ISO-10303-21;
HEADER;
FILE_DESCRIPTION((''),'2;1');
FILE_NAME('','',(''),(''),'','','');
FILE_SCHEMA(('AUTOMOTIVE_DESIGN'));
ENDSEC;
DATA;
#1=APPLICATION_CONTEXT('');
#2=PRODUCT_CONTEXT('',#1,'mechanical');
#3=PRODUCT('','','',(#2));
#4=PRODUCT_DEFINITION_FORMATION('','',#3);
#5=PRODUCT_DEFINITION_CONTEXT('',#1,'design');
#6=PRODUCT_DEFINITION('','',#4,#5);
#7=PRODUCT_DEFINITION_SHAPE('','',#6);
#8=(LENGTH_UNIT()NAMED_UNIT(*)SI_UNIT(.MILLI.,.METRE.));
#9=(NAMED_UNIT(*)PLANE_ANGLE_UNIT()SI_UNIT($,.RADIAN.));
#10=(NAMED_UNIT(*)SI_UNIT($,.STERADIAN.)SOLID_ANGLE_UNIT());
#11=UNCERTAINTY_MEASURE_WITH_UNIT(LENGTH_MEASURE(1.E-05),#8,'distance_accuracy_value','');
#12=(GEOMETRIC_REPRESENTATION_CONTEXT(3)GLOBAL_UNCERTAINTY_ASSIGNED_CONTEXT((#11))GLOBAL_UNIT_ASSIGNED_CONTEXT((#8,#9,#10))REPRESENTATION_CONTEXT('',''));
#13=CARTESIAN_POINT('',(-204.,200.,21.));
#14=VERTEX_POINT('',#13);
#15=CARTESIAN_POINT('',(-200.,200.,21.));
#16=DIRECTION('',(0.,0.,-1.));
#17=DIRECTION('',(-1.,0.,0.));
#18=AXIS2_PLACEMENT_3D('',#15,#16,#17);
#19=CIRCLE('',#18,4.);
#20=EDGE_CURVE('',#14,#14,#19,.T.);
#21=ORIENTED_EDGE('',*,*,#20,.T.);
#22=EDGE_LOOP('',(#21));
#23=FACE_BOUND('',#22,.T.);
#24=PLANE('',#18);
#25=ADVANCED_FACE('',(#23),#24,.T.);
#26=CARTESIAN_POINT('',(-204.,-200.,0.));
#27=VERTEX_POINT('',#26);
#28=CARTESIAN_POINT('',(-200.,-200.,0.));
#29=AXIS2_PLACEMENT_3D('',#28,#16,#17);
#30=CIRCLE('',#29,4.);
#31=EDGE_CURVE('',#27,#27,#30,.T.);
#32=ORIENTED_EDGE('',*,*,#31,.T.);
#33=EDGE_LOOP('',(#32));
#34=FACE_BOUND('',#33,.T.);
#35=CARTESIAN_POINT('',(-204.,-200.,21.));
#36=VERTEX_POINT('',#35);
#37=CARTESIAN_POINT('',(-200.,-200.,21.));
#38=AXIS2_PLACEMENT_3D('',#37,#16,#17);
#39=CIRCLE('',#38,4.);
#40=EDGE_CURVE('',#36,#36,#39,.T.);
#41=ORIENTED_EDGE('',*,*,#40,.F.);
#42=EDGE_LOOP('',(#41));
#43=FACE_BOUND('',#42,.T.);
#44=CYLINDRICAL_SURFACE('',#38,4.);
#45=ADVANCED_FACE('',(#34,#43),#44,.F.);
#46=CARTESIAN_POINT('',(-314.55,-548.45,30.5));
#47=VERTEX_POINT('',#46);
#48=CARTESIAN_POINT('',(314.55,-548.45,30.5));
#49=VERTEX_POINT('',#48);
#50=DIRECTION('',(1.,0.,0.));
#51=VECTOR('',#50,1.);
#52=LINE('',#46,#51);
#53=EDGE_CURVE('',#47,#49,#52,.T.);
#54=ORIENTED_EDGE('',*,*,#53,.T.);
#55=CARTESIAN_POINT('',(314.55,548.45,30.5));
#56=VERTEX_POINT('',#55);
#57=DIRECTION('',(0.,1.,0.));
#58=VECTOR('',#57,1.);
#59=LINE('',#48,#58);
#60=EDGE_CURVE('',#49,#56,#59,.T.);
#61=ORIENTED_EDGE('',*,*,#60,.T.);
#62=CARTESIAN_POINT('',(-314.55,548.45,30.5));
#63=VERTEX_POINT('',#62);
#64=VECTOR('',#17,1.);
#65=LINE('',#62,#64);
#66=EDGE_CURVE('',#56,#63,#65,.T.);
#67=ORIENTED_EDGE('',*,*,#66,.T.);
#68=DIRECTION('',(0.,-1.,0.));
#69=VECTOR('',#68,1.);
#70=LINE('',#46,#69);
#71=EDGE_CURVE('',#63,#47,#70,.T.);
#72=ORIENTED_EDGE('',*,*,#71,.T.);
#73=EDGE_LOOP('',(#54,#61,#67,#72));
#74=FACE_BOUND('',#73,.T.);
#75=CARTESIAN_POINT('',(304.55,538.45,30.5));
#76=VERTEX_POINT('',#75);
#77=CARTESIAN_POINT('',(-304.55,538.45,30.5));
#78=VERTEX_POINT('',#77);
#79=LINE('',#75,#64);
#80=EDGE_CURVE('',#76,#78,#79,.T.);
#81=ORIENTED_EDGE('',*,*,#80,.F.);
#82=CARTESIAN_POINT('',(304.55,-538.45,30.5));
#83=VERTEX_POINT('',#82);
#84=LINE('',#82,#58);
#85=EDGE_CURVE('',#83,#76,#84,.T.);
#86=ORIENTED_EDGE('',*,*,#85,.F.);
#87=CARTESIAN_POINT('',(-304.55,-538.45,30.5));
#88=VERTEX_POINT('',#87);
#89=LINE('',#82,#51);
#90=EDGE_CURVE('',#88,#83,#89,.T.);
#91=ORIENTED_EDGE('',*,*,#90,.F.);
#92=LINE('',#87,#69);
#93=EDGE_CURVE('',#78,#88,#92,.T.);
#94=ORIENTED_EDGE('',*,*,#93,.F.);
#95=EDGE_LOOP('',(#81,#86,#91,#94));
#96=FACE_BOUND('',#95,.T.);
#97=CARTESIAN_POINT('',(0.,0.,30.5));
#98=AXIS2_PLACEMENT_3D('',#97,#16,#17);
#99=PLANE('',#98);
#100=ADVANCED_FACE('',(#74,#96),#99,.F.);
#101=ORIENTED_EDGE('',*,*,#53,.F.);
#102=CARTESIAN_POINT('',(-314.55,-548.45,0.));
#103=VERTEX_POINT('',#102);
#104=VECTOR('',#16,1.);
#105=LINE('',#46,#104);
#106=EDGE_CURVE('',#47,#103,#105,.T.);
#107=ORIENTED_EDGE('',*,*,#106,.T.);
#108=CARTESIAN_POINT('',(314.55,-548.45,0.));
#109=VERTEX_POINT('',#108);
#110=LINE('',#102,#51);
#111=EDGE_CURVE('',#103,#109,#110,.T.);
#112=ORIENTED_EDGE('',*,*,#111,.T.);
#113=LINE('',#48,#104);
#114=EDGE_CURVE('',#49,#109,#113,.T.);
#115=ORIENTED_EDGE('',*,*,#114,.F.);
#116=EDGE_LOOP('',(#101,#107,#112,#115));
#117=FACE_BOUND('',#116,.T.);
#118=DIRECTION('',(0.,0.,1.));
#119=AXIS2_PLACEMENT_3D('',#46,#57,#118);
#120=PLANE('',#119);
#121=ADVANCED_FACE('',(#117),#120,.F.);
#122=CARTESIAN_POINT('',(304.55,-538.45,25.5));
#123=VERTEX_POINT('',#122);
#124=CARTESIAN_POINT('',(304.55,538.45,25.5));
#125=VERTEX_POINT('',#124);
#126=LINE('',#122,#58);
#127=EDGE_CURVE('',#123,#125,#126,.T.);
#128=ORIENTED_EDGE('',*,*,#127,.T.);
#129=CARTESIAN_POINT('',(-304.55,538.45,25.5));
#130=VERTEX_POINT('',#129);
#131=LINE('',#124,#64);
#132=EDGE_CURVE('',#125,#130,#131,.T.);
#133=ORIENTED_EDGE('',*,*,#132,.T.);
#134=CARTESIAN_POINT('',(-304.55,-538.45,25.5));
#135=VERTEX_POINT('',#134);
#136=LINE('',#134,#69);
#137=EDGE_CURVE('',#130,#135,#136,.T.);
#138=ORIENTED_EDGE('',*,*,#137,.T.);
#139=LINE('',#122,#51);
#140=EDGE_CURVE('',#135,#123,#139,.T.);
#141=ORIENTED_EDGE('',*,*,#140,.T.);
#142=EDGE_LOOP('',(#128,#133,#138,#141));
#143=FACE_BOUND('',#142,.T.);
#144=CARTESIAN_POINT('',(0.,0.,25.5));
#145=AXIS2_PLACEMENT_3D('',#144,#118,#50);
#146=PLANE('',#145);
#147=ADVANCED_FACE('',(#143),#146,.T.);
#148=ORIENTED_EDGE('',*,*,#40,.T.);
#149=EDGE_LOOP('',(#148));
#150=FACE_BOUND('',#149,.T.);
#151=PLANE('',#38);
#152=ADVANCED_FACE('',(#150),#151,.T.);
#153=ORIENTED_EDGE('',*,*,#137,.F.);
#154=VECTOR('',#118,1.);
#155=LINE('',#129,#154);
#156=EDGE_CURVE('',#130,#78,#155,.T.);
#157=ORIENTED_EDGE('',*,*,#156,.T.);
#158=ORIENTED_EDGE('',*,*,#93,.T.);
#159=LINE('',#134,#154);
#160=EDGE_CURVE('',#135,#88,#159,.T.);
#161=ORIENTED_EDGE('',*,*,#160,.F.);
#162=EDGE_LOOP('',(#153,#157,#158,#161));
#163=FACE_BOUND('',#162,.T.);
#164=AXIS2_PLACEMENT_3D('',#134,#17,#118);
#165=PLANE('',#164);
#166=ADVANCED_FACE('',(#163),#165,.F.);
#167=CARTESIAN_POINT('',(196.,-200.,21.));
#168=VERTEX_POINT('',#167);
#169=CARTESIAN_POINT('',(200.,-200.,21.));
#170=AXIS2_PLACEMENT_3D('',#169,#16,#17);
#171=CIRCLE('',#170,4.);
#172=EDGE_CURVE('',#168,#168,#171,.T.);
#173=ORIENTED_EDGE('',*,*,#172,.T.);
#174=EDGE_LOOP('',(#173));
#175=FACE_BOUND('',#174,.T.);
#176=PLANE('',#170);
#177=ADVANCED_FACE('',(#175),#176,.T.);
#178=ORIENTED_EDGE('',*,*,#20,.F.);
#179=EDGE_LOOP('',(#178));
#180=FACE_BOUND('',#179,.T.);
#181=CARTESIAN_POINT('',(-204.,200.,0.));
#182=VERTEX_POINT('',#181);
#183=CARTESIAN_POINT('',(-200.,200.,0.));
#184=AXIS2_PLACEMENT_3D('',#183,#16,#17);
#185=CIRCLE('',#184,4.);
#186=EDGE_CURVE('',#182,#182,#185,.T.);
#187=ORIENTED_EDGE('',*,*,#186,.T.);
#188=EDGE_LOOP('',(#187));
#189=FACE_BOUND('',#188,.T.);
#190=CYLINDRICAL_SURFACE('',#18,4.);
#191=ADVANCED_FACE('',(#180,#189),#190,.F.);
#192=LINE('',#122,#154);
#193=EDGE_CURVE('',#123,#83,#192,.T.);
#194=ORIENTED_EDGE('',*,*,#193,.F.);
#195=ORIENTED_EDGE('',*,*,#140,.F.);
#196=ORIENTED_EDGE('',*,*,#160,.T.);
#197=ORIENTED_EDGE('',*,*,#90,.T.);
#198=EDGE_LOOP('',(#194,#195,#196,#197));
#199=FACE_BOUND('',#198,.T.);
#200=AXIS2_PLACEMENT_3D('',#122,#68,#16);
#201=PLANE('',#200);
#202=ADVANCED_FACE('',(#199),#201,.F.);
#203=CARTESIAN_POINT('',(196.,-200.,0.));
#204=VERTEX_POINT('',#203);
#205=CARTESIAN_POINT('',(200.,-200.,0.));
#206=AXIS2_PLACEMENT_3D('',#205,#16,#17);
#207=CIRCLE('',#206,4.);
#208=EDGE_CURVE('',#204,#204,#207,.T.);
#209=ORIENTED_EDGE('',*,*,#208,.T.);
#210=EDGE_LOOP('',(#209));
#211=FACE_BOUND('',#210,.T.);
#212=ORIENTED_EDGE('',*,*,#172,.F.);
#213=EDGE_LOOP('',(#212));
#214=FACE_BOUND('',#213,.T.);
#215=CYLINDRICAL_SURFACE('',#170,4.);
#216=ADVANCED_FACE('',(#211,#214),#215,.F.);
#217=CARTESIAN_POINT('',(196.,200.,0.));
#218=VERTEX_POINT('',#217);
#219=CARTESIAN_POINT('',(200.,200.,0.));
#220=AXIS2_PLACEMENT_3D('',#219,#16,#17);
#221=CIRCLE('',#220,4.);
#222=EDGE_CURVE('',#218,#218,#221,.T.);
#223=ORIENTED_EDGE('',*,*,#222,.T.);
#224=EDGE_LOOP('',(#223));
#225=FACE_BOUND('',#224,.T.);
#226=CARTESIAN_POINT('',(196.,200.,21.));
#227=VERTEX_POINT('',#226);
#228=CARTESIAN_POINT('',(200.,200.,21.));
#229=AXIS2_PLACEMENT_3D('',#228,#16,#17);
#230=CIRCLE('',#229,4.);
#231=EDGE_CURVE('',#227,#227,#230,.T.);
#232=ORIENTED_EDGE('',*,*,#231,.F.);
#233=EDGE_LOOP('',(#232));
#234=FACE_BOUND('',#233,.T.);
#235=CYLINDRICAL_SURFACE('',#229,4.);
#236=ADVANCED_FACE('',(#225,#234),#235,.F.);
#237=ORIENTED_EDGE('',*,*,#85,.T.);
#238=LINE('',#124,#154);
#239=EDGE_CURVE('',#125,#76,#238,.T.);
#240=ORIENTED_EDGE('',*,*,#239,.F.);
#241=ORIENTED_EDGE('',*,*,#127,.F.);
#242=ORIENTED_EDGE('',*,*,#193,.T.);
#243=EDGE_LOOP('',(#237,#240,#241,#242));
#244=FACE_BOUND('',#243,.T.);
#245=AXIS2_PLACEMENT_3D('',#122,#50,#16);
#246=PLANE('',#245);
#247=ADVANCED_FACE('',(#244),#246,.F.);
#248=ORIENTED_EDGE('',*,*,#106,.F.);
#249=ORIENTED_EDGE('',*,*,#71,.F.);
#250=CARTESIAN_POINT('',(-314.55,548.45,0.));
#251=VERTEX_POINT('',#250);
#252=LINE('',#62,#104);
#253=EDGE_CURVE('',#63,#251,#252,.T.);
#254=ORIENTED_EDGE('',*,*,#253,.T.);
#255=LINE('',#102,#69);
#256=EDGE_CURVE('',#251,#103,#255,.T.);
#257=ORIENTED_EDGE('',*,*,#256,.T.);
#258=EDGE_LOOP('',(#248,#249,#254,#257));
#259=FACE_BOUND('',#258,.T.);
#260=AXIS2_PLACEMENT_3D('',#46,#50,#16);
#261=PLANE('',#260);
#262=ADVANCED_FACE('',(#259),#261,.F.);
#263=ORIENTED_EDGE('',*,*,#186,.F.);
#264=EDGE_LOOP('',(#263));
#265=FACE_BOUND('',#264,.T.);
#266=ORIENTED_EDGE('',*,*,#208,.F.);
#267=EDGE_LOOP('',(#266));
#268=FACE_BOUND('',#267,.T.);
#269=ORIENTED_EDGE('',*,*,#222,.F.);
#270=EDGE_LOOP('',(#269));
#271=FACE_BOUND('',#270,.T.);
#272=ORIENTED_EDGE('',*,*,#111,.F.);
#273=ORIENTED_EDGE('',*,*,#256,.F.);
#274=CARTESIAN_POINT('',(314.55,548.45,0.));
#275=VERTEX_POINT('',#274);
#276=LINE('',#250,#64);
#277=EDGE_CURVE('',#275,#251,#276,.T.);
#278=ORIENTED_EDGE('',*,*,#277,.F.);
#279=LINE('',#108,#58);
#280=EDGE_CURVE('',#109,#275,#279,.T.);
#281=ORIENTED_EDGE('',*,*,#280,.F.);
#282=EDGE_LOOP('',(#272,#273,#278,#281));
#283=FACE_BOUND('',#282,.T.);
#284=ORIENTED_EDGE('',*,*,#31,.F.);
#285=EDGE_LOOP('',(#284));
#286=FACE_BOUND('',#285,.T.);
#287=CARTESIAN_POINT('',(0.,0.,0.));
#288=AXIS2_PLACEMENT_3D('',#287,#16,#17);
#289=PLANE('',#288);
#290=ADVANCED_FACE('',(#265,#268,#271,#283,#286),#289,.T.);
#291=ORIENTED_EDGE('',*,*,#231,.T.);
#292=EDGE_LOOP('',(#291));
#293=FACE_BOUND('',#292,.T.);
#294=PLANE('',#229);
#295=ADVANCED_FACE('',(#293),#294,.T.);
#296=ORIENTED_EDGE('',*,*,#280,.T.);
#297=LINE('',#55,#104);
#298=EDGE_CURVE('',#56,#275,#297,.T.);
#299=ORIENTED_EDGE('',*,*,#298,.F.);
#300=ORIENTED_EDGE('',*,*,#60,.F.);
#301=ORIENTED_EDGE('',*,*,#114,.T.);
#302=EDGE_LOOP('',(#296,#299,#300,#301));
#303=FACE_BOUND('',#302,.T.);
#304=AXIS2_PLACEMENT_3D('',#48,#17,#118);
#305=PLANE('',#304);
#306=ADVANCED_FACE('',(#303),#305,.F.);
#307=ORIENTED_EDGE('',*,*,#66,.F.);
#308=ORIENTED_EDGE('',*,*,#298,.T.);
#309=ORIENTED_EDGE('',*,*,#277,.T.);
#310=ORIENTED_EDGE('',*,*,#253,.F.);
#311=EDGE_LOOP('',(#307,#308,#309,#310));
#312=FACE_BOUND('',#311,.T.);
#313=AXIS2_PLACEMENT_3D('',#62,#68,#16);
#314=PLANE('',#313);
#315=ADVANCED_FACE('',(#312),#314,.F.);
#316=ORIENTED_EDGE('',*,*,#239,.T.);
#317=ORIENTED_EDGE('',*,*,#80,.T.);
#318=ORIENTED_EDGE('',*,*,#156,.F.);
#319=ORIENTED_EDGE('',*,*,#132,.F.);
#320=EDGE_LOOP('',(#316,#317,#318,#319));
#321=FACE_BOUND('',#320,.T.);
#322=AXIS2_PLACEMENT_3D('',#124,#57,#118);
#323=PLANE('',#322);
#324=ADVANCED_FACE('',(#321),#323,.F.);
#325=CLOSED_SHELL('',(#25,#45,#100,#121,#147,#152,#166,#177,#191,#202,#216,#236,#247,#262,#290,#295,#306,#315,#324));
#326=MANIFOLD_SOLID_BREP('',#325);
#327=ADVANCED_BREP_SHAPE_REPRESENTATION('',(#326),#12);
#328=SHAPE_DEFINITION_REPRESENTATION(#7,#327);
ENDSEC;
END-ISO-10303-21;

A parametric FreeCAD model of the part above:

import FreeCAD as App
import Part
import Sketcher

V = App.Vector

doc = App.newDocument("Part")
body = doc.addObject("PartDesign::Body", "Body")

sketch1 = body.newObject("Sketcher::SketchObject", "Sketch")
sketch1.AttachmentSupport = (doc.getObject("XY_Plane"), [""])
sketch1.MapMode = "FlatFace"
sketch1.addGeometry([
    Part.LineSegment(V(-314.55, 548.45, 0), V(-314.55, -548.45, 0)),
    Part.LineSegment(V(-314.55, -548.45, 0), V(314.55, -548.45, 0)),
    Part.LineSegment(V(314.55, -548.45, 0), V(314.55, 548.45, 0)),
    Part.LineSegment(V(314.55, 548.45, 0), V(-314.55, 548.45, 0)),
], False)
sketch1.addConstraint([
    Sketcher.Constraint("Coincident", 0, 2, 1, 1),
    Sketcher.Constraint("Coincident", 1, 2, 2, 1),
    Sketcher.Constraint("Coincident", 2, 2, 3, 1),
    Sketcher.Constraint("Coincident", 3, 2, 0, 1),
    Sketcher.Constraint("Vertical", 0),
    Sketcher.Constraint("Horizontal", 1),
    Sketcher.Constraint("Vertical", 2),
    Sketcher.Constraint("Horizontal", 3),
    Sketcher.Constraint("Symmetric", 0, 2, 2, 2, -1, 1),
    Sketcher.Constraint("DistanceX", 1, 1, 1, 2, 629.1),
    Sketcher.Constraint("DistanceY", 0, 2, 0, 1, 1096.9),
])
pad1 = body.newObject("PartDesign::Pad", "Pad")
pad1.Profile = sketch1
pad1.Length = 30.5

sketch2 = body.newObject("Sketcher::SketchObject", "Sketch001")
sketch2.AttachmentSupport = (doc.getObject("XY_Plane"), [""])
sketch2.MapMode = "FlatFace"
sketch2.addGeometry([
    Part.Circle(V(200, 200, 0), V(0, 0, 1), 4),
    Part.Circle(V(-200, 200, 0), V(0, 0, 1), 4),
    Part.Circle(V(-200, -200, 0), V(0, 0, 1), 4),
    Part.Circle(V(200, -200, 0), V(0, 0, 1), 4),
], False)
sketch2.addConstraint([
    Sketcher.Constraint("Equal", 0, 1),
    Sketcher.Constraint("Equal", 1, 2),
    Sketcher.Constraint("Equal", 2, 3),
    Sketcher.Constraint("Symmetric", 0, 3, 2, 3, -1, 1),
    Sketcher.Constraint("Symmetric", 1, 3, 3, 3, -1, 1),
    Sketcher.Constraint("Symmetric", 0, 3, 1, 3, -2),
    Sketcher.Constraint("Diameter", 0, 8.0),
    Sketcher.Constraint("DistanceX", -1, 1, 0, 3, 200.0),
    Sketcher.Constraint("DistanceY", -1, 1, 0, 3, 200.0),
])
pocket1 = body.newObject("PartDesign::Pocket", "Pocket")
pocket1.Profile = sketch2
pocket1.Length = 21
pocket1.Reversed = True

sketch3 = body.newObject("Sketcher::SketchObject", "Sketch002")
sketch3.AttachmentSupport = (doc.getObject("XY_Plane"), [""])
sketch3.MapMode = "FlatFace"
sketch3.AttachmentOffset = App.Placement(V(0, 0, 30.5), App.Rotation())
sketch3.addGeometry([
    Part.LineSegment(V(-304.55, 538.45, 0), V(-304.55, -538.45, 0)),
    Part.LineSegment(V(-304.55, -538.45, 0), V(304.55, -538.45, 0)),
    Part.LineSegment(V(304.55, -538.45, 0), V(304.55, 538.45, 0)),
    Part.LineSegment(V(304.55, 538.45, 0), V(-304.55, 538.45, 0)),
], False)
sketch3.addConstraint([
    Sketcher.Constraint("Coincident", 0, 2, 1, 1),
    Sketcher.Constraint("Coincident", 1, 2, 2, 1),
    Sketcher.Constraint("Coincident", 2, 2, 3, 1),
    Sketcher.Constraint("Coincident", 3, 2, 0, 1),
    Sketcher.Constraint("Vertical", 0),
    Sketcher.Constraint("Horizontal", 1),
    Sketcher.Constraint("Vertical", 2),
    Sketcher.Constraint("Horizontal", 3),
    Sketcher.Constraint("Symmetric", 0, 2, 2, 2, -1, 1),
    Sketcher.Constraint("DistanceX", 1, 1, 1, 2, 609.1),
    Sketcher.Constraint("DistanceY", 0, 2, 0, 1, 1076.9),
])
pocket2 = body.newObject("PartDesign::Pocket", "Pocket001")
pocket2.Profile = sketch3
pocket2.Length = 5

doc.recompute()
